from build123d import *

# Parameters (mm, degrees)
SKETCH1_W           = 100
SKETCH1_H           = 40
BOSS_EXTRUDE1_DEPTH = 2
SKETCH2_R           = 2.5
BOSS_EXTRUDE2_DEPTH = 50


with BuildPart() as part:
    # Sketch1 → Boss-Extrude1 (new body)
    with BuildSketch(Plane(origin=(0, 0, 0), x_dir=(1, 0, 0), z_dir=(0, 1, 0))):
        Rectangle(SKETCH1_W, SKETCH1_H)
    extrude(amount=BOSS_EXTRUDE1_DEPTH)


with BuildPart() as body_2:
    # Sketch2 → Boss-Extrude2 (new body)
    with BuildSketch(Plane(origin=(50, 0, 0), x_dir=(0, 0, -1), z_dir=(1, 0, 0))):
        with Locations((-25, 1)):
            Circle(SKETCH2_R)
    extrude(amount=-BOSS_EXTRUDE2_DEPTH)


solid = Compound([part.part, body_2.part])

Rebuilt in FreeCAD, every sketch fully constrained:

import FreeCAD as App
import Part
import Sketcher

doc = App.newDocument("Part")
body = doc.addObject("PartDesign::Body", "Body")

# Sketch on XZ plane
sketch1 = body.newObject("Sketcher::SketchObject", "Sketch")
sketch1.AttachmentSupport = (doc.getObject("XZ_Plane"), [""])
sketch1.MapMode = "FlatFace"
sketch1.addGeometry([
    Part.LineSegment(App.Vector(-50, -20, 0), App.Vector(-50, 20, 0)),
    Part.LineSegment(App.Vector(-50, 20, 0), App.Vector(50, 20, 0)),
    Part.LineSegment(App.Vector(50, 20, 0), App.Vector(50, -20, 0)),
    Part.LineSegment(App.Vector(50, -20, 0), App.Vector(-50, -20, 0)),
], False)
sketch1.addConstraint([
    Sketcher.Constraint("Coincident", 0, 2, 1, 1),
    Sketcher.Constraint("Coincident", 1, 2, 2, 1),
    Sketcher.Constraint("Coincident", 2, 2, 3, 1),
    Sketcher.Constraint("Coincident", 3, 2, 0, 1),
    Sketcher.Constraint("Vertical", 0),
    Sketcher.Constraint("Horizontal", 1),
    Sketcher.Constraint("Vertical", 2),
    Sketcher.Constraint("Horizontal", 3),
    Sketcher.Constraint("Symmetric", 0, 2, 2, 2, -1, 1),
    Sketcher.Constraint("DistanceX", 1, 1, 1, 2, 100.0),
    Sketcher.Constraint("DistanceY", 0, 1, 0, 2, 40.0),
])
pad1 = body.newObject("PartDesign::Pad", "Pad")
pad1.Profile = sketch1
pad1.Length = 2
pad1.Reversed = True
body2 = doc.addObject("PartDesign::Body", "Body001")

# Sketch on YZ plane
sketch2 = body2.newObject("Sketcher::SketchObject", "Sketch001")
sketch2.AttachmentSupport = (doc.getObject("YZ_Plane001"), [""])
sketch2.MapMode = "FlatFace"
sketch2.AttachmentOffset = App.Placement(App.Vector(0, 0, 50), App.Rotation())
sketch2.addGeometry(Part.Circle(App.Vector(1, 25, 0), App.Vector(0, 0, 1), 2.5), False)
sketch2.addConstraint([
    Sketcher.Constraint("Diameter", 0, 5.0),
    Sketcher.Constraint("DistanceX", -1, 1, 0, 3, 1.0),
    Sketcher.Constraint("DistanceY", -1, 1, 0, 3, 25.0),
])
pad2 = body2.newObject("PartDesign::Pad", "Pad001")
pad2.Profile = sketch2
pad2.Length = 50
pad2.Reversed = True

doc.recompute()
